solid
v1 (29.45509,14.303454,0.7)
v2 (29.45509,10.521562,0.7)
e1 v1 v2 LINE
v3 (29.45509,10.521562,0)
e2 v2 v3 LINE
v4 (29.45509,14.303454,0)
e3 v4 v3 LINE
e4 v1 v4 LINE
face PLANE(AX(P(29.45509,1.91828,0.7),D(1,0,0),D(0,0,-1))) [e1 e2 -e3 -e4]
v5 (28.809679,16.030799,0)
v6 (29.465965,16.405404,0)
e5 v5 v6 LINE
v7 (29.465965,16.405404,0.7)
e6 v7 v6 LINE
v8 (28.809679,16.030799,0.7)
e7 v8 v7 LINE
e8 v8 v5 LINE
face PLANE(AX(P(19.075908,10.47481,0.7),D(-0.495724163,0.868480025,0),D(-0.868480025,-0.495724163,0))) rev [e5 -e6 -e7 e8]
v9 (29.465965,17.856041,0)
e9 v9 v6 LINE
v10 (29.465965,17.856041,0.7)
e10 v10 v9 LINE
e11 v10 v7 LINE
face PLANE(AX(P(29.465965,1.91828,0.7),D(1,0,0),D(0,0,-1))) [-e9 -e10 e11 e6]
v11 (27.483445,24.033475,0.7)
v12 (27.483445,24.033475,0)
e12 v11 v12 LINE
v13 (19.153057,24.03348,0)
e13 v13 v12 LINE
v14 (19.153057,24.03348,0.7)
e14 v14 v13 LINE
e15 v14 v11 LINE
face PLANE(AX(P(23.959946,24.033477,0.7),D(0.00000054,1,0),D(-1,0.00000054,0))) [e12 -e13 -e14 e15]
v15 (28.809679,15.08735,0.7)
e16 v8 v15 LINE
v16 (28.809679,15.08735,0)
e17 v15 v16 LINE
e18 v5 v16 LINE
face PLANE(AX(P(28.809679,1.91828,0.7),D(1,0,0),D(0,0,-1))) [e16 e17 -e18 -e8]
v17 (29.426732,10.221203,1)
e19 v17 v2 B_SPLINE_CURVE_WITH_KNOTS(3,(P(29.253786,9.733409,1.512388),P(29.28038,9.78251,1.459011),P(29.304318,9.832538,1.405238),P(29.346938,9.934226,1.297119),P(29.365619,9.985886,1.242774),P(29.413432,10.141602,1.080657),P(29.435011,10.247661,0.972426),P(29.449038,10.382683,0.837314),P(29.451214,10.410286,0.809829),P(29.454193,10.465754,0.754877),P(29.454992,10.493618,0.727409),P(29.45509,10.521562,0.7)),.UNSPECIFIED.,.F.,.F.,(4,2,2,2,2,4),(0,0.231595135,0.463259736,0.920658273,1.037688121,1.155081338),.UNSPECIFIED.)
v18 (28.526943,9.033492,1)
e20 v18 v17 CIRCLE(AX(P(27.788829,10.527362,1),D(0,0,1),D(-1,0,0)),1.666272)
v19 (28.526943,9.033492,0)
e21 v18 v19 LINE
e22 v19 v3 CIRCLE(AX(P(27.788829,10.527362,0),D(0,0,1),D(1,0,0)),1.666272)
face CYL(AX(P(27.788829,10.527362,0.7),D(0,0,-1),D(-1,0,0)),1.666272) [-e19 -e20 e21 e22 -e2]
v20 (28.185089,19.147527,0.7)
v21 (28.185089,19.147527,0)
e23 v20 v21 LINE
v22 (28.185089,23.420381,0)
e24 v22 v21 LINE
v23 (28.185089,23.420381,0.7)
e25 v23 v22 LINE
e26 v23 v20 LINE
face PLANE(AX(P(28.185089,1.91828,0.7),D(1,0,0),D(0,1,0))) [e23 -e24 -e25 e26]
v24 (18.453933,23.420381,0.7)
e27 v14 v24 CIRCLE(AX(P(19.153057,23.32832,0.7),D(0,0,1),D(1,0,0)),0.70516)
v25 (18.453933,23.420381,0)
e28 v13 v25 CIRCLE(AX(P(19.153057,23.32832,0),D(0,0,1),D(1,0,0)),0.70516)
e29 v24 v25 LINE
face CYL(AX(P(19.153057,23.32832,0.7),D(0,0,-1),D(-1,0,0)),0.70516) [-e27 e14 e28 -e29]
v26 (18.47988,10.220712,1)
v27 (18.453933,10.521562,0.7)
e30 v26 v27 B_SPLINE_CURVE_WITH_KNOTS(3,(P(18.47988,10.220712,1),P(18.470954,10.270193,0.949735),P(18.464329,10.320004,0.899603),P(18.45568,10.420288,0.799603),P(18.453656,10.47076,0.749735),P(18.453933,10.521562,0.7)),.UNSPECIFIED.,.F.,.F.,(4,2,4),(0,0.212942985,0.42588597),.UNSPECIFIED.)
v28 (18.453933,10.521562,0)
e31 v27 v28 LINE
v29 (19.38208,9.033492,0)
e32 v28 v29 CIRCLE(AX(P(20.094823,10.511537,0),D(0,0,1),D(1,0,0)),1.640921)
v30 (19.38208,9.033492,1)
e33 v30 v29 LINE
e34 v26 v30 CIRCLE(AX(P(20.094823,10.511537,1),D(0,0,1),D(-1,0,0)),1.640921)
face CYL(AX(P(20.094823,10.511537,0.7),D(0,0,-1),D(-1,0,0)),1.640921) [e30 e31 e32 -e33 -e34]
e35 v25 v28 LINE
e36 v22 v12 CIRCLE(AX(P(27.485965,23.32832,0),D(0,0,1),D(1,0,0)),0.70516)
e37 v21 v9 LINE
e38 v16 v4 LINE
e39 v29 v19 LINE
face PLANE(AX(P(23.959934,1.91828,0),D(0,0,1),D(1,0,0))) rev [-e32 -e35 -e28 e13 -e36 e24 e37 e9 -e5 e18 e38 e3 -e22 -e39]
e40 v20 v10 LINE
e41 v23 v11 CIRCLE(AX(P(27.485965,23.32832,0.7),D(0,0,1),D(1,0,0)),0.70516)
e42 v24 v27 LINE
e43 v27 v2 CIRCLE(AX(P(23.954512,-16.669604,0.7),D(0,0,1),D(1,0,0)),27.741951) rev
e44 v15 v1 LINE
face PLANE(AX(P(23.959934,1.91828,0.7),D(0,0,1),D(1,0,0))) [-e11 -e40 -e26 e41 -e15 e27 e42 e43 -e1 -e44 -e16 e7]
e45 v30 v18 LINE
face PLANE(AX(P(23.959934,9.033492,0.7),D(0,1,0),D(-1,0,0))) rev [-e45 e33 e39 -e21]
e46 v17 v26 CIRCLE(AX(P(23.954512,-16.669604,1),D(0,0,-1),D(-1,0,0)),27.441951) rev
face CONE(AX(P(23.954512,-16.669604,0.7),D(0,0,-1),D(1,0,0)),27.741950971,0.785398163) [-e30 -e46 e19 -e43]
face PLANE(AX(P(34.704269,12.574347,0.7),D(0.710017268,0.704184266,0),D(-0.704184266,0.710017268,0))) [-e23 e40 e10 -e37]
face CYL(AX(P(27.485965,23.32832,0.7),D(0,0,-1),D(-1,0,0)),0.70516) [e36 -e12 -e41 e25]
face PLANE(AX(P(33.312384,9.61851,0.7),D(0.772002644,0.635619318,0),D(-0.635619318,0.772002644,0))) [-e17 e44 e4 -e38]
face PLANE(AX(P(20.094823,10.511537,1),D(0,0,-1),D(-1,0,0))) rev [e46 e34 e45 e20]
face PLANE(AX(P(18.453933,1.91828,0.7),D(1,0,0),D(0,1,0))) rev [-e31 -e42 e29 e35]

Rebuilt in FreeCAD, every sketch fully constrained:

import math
import FreeCAD as App
import Part
import Sketcher
Q = App.Units.Quantity


def faces_at(feature, points):
    """Names of the faces that lie closest to the given points."""
    faces = feature.Shape.Faces
    near = lambda p: min(range(len(faces)), key=lambda i: faces[i].distToShape(Part.Vertex(*p))[0])
    return sorted({f"Face{near(p) + 1}" for p in points})

doc = App.newDocument("Part")
body = doc.addObject("PartDesign::Body", "Body")

sketch1 = body.newObject("Sketcher::SketchObject", "Sketch")
sketch1.AttachmentSupport = (doc.getObject("XY_Plane"), [""])
sketch1.MapMode = "FlatFace"
sketch1.addGeometry(Part.LineSegment(App.Vector(19.155577, 24.03348, 0), App.Vector(19.153057, 24.03348, 0)), False)
sketch1.addGeometry(Part.ArcOfCircle(Part.Circle(App.Vector(19.153057, 23.32832, 0), App.Vector(0, 0, 1), 0.70516), math.radians(90), math.radians(172.498413)), False)
sketch1.addGeometry(Part.LineSegment(App.Vector(18.453933, 23.420381, 0), App.Vector(18.453933, 10.521562, 0)), False)
sketch1.addGeometry(Part.ArcOfCircle(Part.Circle(App.Vector(20.094823, 10.511537, 0), App.Vector(0, 0, 1), 1.640921), math.radians(179.649952), math.radians(244.2557)), False)
sketch1.addGeometry(Part.LineSegment(App.Vector(19.38208, 9.033492, 0), App.Vector(28.526943, 9.033492, 0)), False)
sketch1.addGeometry(Part.ArcOfCircle(Part.Circle(App.Vector(27.788828, 10.527362, 0), App.Vector(0, 0, 1), 1.666272), math.radians(-63.706217), math.radians(-0.199435)), False)
sketch1.addGeometry(Part.LineSegment(App.Vector(29.45509, 10.521562, 0), App.Vector(29.45509, 14.303454, 0)), False)
sketch1.addGeometry(Part.LineSegment(App.Vector(29.45509, 14.303454, 0), App.Vector(28.809679, 15.08735, 0)), False)
sketch1.addGeometry(Part.LineSegment(App.Vector(28.809679, 15.08735, 0), App.Vector(28.809679, 16.030799, 0)), False)
sketch1.addGeometry(Part.LineSegment(App.Vector(28.809679, 16.030799, 0), App.Vector(29.465965, 16.405404, 0)), False)
sketch1.addGeometry(Part.LineSegment(App.Vector(29.465965, 16.405404, 0), App.Vector(29.465965, 17.856041, 0)), False)
sketch1.addGeometry(Part.LineSegment(App.Vector(29.465965, 17.856041, 0), App.Vector(28.185089, 19.147527, 0)), False)
sketch1.addGeometry(Part.LineSegment(App.Vector(28.185089, 19.147527, 0), App.Vector(28.185089, 23.420381, 0)), False)
sketch1.addGeometry(Part.ArcOfCircle(Part.Circle(App.Vector(27.485965, 23.32832, 0), App.Vector(0, 0, 1), 0.70516), math.radians(7.501587), math.radians(90.204713)), False)
sketch1.addGeometry(Part.LineSegment(App.Vector(27.483445, 24.033475, 0), App.Vector(19.155577, 24.03348, 0)), False)
sketch1.addConstraint(Sketcher.Constraint("Tangent", 0, 2, 1, 1))
sketch1.addConstraint(Sketcher.Constraint("Coincident", 1, 2, 2, 1))
sketch1.addConstraint(Sketcher.Constraint("Coincident", 2, 2, 3, 1))
sketch1.addConstraint(Sketcher.Constraint("Coincident", 3, 2, 4, 1))
sketch1.addConstraint(Sketcher.Constraint("Coincident", 4, 2, 5, 1))
sketch1.addConstraint(Sketcher.Constraint("Coincident", 5, 2, 6, 1))
sketch1.addConstraint(Sketcher.Constraint("Coincident", 6, 2, 7, 1))
sketch1.addConstraint(Sketcher.Constraint("Coincident", 7, 2, 8, 1))
sketch1.addConstraint(Sketcher.Constraint("Coincident", 8, 2, 9, 1))
sketch1.addConstraint(Sketcher.Constraint("Coincident", 9, 2, 10, 1))
sketch1.addConstraint(Sketcher.Constraint("Coincident", 10, 2, 11, 1))
sketch1.addConstraint(Sketcher.Constraint("Coincident", 11, 2, 12, 1))
sketch1.addConstraint(Sketcher.Constraint("Coincident", 12, 2, 13, 1))
sketch1.addConstraint(Sketcher.Constraint("Coincident", 13, 2, 14, 1))
sketch1.addConstraint(Sketcher.Constraint("Coincident", 14, 2, 0, 1))
sketch1.addConstraint(Sketcher.Constraint("Vertical", 2))
sketch1.addConstraint(Sketcher.Constraint("Horizontal", 4))
sketch1.addConstraint(Sketcher.Constraint("Vertical", 6))
sketch1.addConstraint(Sketcher.Constraint("Vertical", 8))
sketch1.addConstraint(Sketcher.Constraint("Vertical", 10))
sketch1.addConstraint(Sketcher.Constraint("Vertical", 12))
sketch1.addConstraint(Sketcher.Constraint("Equal", 1, 13))
sketch1.addConstraint(Sketcher.Constraint("Horizontal", 1, 3, 13, 3))
sketch1.addConstraint(Sketcher.Constraint("Horizontal", 2, 2, 5, 2))
sketch1.addConstraint(Sketcher.Constraint("Horizontal", 1, 2, 12, 2))
sketch1.addConstraint(Sketcher.Constraint("Vertical", 1, 3, 0, 2))
sketch1.addConstraint(Sketcher.Constraint("Radius", 1, Q("0.70516 mm")))
sketch1.addConstraint(Sketcher.Constraint("Radius", 3, Q("1.640921 mm")))
sketch1.addConstraint(Sketcher.Constraint("Radius", 5, Q("1.666272 mm")))
sketch1.addConstraint(Sketcher.Constraint("DistanceX", 13, 3, 10, 2, Q("1.980001 mm")))
sketch1.addConstraint(Sketcher.Constraint("DistanceX", 0, 2, 0, 1, Q("0.002519 mm")))
sketch1.addConstraint(Sketcher.Constraint("DistanceY", 2, 2, 2, 1, Q("12.898819 mm")))
sketch1.addConstraint(Sketcher.Constraint("DistanceY", 6, 1, 6, 2, Q("3.781892 mm")))
sketch1.addConstraint(Sketcher.Constraint("DistanceY", 8, 1, 8, 2, Q("0.94345 mm")))
sketch1.addConstraint(Sketcher.Constraint("DistanceY", -1, 1, 8, 2, Q("16.030799 mm")))
sketch1.addConstraint(Sketcher.Constraint("DistanceY", 1, 2, 0, 2, Q("0.613099 mm")))
sketch1.addConstraint(Sketcher.Constraint("DistanceY", 2, 2, 5, 3, Q("0.0058 mm")))
sketch1.addConstraint(Sketcher.Constraint("Distance", 11, Q("1.81895 mm")))
sketch1.addConstraint(Sketcher.Constraint("Distance", 14, Q("8.327868 mm")))
sketch1.addConstraint(Sketcher.Constraint("DistanceX", 4, 1, 4, 2, Q("9.144864 mm")))
sketch1.addConstraint(Sketcher.Constraint("DistanceY", 10, 1, 10, 2, Q("1.450637 mm")))
sketch1.addConstraint(Sketcher.Constraint("DistanceY", 12, 1, 12, 2, Q("4.272854 mm")))
sketch1.addConstraint(Sketcher.Constraint("DistanceY", -1, 1, 1, 3, Q("23.32832 mm")))
sketch1.addConstraint(Sketcher.Constraint("DistanceX", -1, 1, 5, 3, Q("27.788828 mm")))
sketch1.addConstraint(Sketcher.Constraint("DistanceX", -1, 1, 3, 2, Q("19.38208 mm")))
sketch1.addConstraint(Sketcher.Constraint("DistanceX", -1, 1, 7, 2, Q("28.809679 mm")))
sketch1.addConstraint(Sketcher.Constraint("DistanceX", -1, 1, 11, 2, Q("28.185089 mm")))
sketch1.addConstraint(Sketcher.Constraint("DistanceX", 1, 3, 5, 3, Q("8.635771 mm")))
pad1 = body.newObject("PartDesign::Pad", "Pad")
pad1.Profile = sketch1
pad1.Length = 0.7

sketch2 = body.newObject("Sketcher::SketchObject", "Sketch001")
sketch2.AttachmentSupport = (doc.getObject("XY_Plane"), [""])
sketch2.MapMode = "FlatFace"
sketch2.addGeometry(Part.LineSegment(App.Vector(19.38208, 9.033492, 0), App.Vector(28.526943, 9.033492, 0)), False)
sketch2.addGeometry(Part.ArcOfCircle(Part.Circle(App.Vector(27.788828, 10.527362, 0), App.Vector(0, 0, 1), 1.666272), math.radians(-63.706217), math.radians(-0.199435)), False)
sketch2.addGeometry(Part.ArcOfCircle(Part.Circle(App.Vector(23.954512, -16.669604, 0), App.Vector(0, 0, 1), 27.741951), math.radians(78.563805), math.radians(101.436195)), False)
sketch2.addGeometry(Part.ArcOfCircle(Part.Circle(App.Vector(20.094823, 10.511537, 0), App.Vector(0, 0, 1), 1.640921), math.radians(179.649952), math.radians(244.2557)), False)
sketch2.addConstraint(Sketcher.Constraint("Coincident", 0, 2, 1, 1))
sketch2.addConstraint(Sketcher.Constraint("Coincident", 1, 2, 2, 1))
sketch2.addConstraint(Sketcher.Constraint("Coincident", 2, 2, 3, 1))
sketch2.addConstraint(Sketcher.Constraint("Coincident", 3, 2, 0, 1))
sketch2.addConstraint(Sketcher.Constraint("Horizontal", 0))
sketch2.addConstraint(Sketcher.Constraint("Horizontal", 1, 2, 2, 2))
sketch2.addConstraint(Sketcher.Constraint("Radius", 1, Q("1.666272 mm")))
sketch2.addConstraint(Sketcher.Constraint("Radius", 2, Q("27.741951 mm")))
sketch2.addConstraint(Sketcher.Constraint("Radius", 3, Q("1.640921 mm")))
sketch2.addConstraint(Sketcher.Constraint("DistanceY", 1, 2, 1, 3, Q("0.0058 mm")))
sketch2.addConstraint(Sketcher.Constraint("DistanceX", 0, 1, 0, 2, Q("9.144864 mm")))
sketch2.addConstraint(Sketcher.Constraint("DistanceX", -1, 1, 1, 3, Q("27.788828 mm")))
sketch2.addConstraint(Sketcher.Constraint("DistanceY", -1, 1, 1, 3, Q("10.527362 mm")))
sketch2.addConstraint(Sketcher.Constraint("DistanceX", -1, 1, 2, 3, Q("23.954512 mm")))
sketch2.addConstraint(Sketcher.Constraint("DistanceY", -1, 1, 0, 2, Q("9.033492 mm")))
pad2 = body.newObject("PartDesign::Pad", "Pad001")
pad2.Profile = sketch2
pad2.Length = 1
doc.recompute()

datumplane = body.newObject("PartDesign::Plane", "DatumPlane")
datumplane.AttachmentSupport = (doc.getObject("XY_Plane"), [""])
datumplane.MapMode = "FlatFace"
datumplane.AttachmentOffset = App.Placement(App.Vector(0, 0, 0.7), App.Rotation())
draft = body.newObject("PartDesign::Draft", "Draft")
draft.Base = (pad2, faces_at(pad2, [(23.955, 11.072, 0.85)]))
draft.NeutralPlane = (datumplane, [""])
draft.Angle = 45
draft.Reversed = False

doc.recompute()
